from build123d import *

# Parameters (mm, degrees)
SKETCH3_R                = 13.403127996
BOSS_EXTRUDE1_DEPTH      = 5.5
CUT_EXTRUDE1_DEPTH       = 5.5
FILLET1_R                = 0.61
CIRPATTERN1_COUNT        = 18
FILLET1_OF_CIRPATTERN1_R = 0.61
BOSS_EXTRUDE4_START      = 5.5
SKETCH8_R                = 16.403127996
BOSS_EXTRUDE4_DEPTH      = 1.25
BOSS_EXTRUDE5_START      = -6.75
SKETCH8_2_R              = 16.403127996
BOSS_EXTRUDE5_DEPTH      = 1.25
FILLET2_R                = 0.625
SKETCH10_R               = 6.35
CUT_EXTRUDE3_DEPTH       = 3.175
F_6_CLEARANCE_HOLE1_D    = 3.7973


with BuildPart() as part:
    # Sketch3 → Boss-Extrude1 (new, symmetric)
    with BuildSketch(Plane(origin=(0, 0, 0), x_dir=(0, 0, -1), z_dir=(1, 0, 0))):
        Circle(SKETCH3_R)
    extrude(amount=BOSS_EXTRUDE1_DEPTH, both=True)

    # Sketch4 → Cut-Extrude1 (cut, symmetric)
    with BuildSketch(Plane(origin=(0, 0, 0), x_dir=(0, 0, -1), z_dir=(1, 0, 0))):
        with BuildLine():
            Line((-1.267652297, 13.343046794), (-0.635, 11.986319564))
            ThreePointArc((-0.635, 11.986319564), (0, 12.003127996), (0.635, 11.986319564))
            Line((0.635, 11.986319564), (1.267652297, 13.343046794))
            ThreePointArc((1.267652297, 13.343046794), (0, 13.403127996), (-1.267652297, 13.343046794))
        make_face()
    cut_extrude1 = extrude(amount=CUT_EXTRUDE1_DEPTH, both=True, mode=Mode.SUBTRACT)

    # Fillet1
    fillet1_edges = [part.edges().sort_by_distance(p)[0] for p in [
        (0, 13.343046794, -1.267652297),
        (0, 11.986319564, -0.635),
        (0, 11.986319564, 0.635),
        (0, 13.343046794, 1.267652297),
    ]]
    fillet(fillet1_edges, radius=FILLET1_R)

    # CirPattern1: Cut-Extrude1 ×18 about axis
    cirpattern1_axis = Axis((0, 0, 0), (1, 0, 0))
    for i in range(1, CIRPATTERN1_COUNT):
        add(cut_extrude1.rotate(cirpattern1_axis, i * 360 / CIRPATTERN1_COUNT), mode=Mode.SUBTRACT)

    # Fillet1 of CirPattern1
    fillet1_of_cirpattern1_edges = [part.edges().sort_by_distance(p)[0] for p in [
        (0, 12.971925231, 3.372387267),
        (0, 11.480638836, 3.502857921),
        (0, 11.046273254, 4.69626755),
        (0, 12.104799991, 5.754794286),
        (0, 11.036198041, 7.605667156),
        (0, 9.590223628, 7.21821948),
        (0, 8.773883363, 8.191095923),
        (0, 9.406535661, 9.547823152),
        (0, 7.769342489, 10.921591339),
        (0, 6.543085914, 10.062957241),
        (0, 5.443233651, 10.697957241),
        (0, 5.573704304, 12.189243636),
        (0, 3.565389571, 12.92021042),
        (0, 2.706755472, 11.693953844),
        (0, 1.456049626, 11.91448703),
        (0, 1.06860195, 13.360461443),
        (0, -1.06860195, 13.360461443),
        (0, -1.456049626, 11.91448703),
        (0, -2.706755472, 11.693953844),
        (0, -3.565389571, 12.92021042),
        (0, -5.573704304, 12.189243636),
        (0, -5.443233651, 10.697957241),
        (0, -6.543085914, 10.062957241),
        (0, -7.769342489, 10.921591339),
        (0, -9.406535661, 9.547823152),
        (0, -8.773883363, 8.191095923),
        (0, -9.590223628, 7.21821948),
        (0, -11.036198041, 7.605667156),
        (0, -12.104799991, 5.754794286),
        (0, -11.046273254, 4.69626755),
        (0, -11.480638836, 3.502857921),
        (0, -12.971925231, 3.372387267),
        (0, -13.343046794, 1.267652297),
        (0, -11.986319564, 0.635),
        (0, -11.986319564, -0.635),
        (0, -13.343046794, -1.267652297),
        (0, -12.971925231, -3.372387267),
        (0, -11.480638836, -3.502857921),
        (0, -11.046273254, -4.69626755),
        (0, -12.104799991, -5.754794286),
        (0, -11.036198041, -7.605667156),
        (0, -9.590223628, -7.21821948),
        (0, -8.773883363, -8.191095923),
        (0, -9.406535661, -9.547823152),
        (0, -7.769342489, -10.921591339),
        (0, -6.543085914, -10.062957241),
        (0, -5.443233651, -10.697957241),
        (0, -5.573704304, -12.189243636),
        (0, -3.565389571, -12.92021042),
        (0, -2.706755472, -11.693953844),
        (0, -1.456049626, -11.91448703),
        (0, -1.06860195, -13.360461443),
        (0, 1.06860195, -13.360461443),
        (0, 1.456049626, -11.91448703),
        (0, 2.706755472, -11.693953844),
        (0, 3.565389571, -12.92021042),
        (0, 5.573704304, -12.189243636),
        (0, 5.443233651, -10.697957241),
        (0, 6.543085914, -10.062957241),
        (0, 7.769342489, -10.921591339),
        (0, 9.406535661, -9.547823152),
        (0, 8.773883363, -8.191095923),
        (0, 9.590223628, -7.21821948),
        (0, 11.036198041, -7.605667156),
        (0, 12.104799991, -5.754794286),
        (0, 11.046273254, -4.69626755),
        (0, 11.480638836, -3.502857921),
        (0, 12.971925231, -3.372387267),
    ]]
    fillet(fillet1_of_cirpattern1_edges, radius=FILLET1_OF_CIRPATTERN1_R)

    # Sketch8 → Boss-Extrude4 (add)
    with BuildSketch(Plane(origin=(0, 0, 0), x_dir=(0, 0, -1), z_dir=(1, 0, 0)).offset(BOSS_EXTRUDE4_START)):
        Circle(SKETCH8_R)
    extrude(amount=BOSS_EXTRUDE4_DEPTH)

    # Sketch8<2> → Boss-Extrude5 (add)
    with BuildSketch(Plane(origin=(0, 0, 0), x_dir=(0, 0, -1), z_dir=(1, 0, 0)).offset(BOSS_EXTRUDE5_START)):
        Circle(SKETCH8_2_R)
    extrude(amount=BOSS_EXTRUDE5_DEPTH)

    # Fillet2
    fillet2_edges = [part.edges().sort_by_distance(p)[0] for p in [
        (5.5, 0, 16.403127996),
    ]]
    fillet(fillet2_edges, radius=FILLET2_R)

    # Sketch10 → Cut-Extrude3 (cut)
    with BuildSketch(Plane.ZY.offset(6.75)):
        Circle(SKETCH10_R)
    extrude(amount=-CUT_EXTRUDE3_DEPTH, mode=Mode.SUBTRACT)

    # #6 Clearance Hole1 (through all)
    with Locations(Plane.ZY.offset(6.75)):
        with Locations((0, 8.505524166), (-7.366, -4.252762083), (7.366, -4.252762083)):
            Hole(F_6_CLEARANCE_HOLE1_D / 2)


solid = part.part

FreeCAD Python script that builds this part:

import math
import FreeCAD as App
import Part
import Sketcher
from FreeCAD import Vector
Q = App.Units.Quantity


def edges_at(feature, points):
    """Names of the edges that pass closest to the given points."""
    edges = feature.Shape.Edges
    near = lambda p: min(range(len(edges)), key=lambda i: edges[i].distToShape(Part.Vertex(*p))[0])
    return sorted({f"Edge{near(p) + 1}" for p in points})

doc = App.newDocument("Part")
params = doc.addObject("Spreadsheet::Sheet", "Params")
for row, (alias, value) in enumerate([
    ("pad1_length", "11 mm"),
    ("pocket1_length", "11 mm"),
    ("fillet_radius", "0.61 mm"),
    ("fillet2_radius", "0.61 mm"),
    ("pad2_length", "1.25 mm"),
    ("pad3_length", "1.25 mm"),
    ("fillet3_radius", "0.625 mm"),
    ("sketch5_diameter", "0.5 in"),
    ("pocket2_length", "0.125 in"),
    ("hole_diameter", "0.1495 in"),
], start=1):
    params.set(f"A{row}", alias)
    params.set(f"B{row}", "=" + value)
    params.setAlias(f"B{row}", alias)

body = doc.addObject("PartDesign::Body", "Body")

sketch1 = doc.addObject("Sketcher::SketchObject", "Sketch")
body.addObject(sketch1)
sketch1.AttachmentSupport = (doc.YZ_Plane, [""])
sketch1.MapMode = "FlatFace"
sketch1.addGeometry(Part.Circle(Vector(0, 0, 0), Vector(0, 0, 1), 13.403128), False)
sketch1.addConstraint([
    Sketcher.Constraint("Coincident", 0, 3, -1, 1),
    Sketcher.Constraint("Diameter", 0, Q("26.806256 mm")),
])
pad1 = doc.addObject("PartDesign::Pad", "Pad")
body.addObject(pad1)
pad1.Profile = sketch1
pad1.setExpression("Length", "Params.pad1_length")
pad1.Midplane = True

sketch2 = doc.addObject("Sketcher::SketchObject", "Sketch001")
body.addObject(sketch2)
sketch2.AttachmentSupport = (doc.YZ_Plane, [""])
sketch2.MapMode = "FlatFace"
sketch2.addGeometry([
    Part.LineSegment(Vector(13.343047, 1.267652, 0), Vector(11.98632, 0.635, 0)),
    Part.ArcOfCircle(Part.Circle(Vector(0, 0, 0), Vector(0, 0, 1), 12.003128), math.radians(-3.032527), math.radians(3.032527)),
    Part.LineSegment(Vector(11.98632, -0.635, 0), Vector(13.343047, -1.267652, 0)),
    Part.ArcOfCircle(Part.Circle(Vector(0, 0, 0), Vector(0, 0, 1), 13.403128), math.radians(-5.42708), math.radians(5.42708)),
], False)
sketch2.addConstraint([
    Sketcher.Constraint("Coincident", 0, 2, 1, 2),
    Sketcher.Constraint("Coincident", 1, 1, 2, 1),
    Sketcher.Constraint("Coincident", 2, 2, 3, 1),
    Sketcher.Constraint("Coincident", 3, 2, 0, 1),
    Sketcher.Constraint("Coincident", 1, 3, -1, 1),
    Sketcher.Constraint("Coincident", 3, 3, -1, 1),
    Sketcher.Constraint("Vertical", 0, 2, 1, 1),
    Sketcher.Constraint("Vertical", 2, 2, 3, 2),
    Sketcher.Constraint("Angle", 0, Q("-155 deg")),
    Sketcher.Constraint("DistanceY", 1, 1, 0, 2, Q("0.05 in")),
    Sketcher.Constraint("Radius", 1, Q("12.003128 mm")),
    Sketcher.Constraint("Radius", 3, Q("13.403128 mm")),
])
pocket1 = doc.addObject("PartDesign::Pocket", "Pocket")
body.addObject(pocket1)
pocket1.Profile = sketch2
pocket1.setExpression("Length", "Params.pocket1_length")
pocket1.Midplane = True
doc.recompute()

fillet = doc.addObject("PartDesign::Fillet", "Fillet")
body.addObject(fillet)
fillet.Base = (pocket1, edges_at(pocket1, [
    (0, 13.343, -1.268),
    (0, 11.986, -0.635),
    (0, 11.986, 0.635),
    (0, 13.343, 1.268),
]))
fillet.setExpression("Radius", "Params.fillet_radius")
doc.recompute()

polarpattern = doc.addObject("PartDesign::PolarPattern", "PolarPattern")
body.addObject(polarpattern)
polarpattern.Originals = [pocket1]
polarpattern.Axis = (doc.X_Axis, [""])
polarpattern.Angle = 360
polarpattern.Occurrences = 18
body.Tip = polarpattern
doc.recompute()

fillet2 = doc.addObject("PartDesign::Fillet", "Fillet001")
body.addObject(fillet2)
fillet2.Base = (polarpattern, edges_at(polarpattern, [
    (0, 12.972, 3.372),
    (0, 11.481, 3.503),
    (0, 11.046, 4.696),
    (0, 12.105, 5.755),
    (0, 11.036, 7.606),
    (0, 9.59, 7.218),
    (0, 8.774, 8.191),
    (0, 9.407, 9.548),
    (0, 7.769, 10.922),
    (0, 6.543, 10.063),
    (0, 5.443, 10.698),
    (0, 5.574, 12.189),
    (0, 3.565, 12.92),
    (0, 2.707, 11.694),
    (0, 1.456, 11.914),
    (0, 1.069, 13.36),
    (0, -1.069, 13.36),
    (0, -1.456, 11.914),
    (0, -2.707, 11.694),
    (0, -3.565, 12.92),
    (0, -5.574, 12.189),
    (0, -5.443, 10.698),
    (0, -6.543, 10.063),
    (0, -7.769, 10.922),
    (0, -9.407, 9.548),
    (0, -8.774, 8.191),
    (0, -9.59, 7.218),
    (0, -11.036, 7.606),
    (0, -12.105, 5.755),
    (0, -11.046, 4.696),
    (0, -11.481, 3.503),
    (0, -12.972, 3.372),
    (0, -13.343, 1.268),
    (0, -11.986, 0.635),
    (0, -11.986, -0.635),
    (0, -13.343, -1.268),
    (0, -12.972, -3.372),
    (0, -11.481, -3.503),
    (0, -11.046, -4.696),
    (0, -12.105, -5.755),
    (0, -11.036, -7.606),
    (0, -9.59, -7.218),
    (0, -8.774, -8.191),
    (0, -9.407, -9.548),
    (0, -7.769, -10.922),
    (0, -6.543, -10.063),
    (0, -5.443, -10.698),
    (0, -5.574, -12.189),
    (0, -3.565, -12.92),
    (0, -2.707, -11.694),
    (0, -1.456, -11.914),
    (0, -1.069, -13.36),
    (0, 1.069, -13.36),
    (0, 1.456, -11.914),
    (0, 2.707, -11.694),
    (0, 3.565, -12.92),
    (0, 5.574, -12.189),
    (0, 5.443, -10.698),
    (0, 6.543, -10.063),
    (0, 7.769, -10.922),
    (0, 9.407, -9.548),
    (0, 8.774, -8.191),
    (0, 9.59, -7.218),
    (0, 11.036, -7.606),
    (0, 12.105, -5.755),
    (0, 11.046, -4.696),
    (0, 11.481, -3.503),
    (0, 12.972, -3.372),
]))
fillet2.setExpression("Radius", "Params.fillet2_radius")

sketch3 = doc.addObject("Sketcher::SketchObject", "Sketch002")
body.addObject(sketch3)
sketch3.AttachmentSupport = (doc.YZ_Plane, [""])
sketch3.MapMode = "FlatFace"
sketch3.AttachmentOffset = App.Placement(Vector(0, 0, 5.5), App.Rotation())
sketch3.addGeometry(Part.Circle(Vector(0, 0, 0), Vector(0, 0, 1), 16.403128), False)
sketch3.addConstraint([
    Sketcher.Constraint("Coincident", 0, 3, -1, 1),
    Sketcher.Constraint("Diameter", 0, Q("32.806256 mm")),
])
pad2 = doc.addObject("PartDesign::Pad", "Pad001")
body.addObject(pad2)
pad2.Profile = sketch3
pad2.setExpression("Length", "Params.pad2_length")

sketch4 = doc.addObject("Sketcher::SketchObject", "Sketch003")
body.addObject(sketch4)
sketch4.AttachmentSupport = (doc.YZ_Plane, [""])
sketch4.MapMode = "FlatFace"
sketch4.AttachmentOffset = App.Placement(Vector(0, 0, -6.75), App.Rotation())
sketch4.addGeometry(Part.Circle(Vector(0, 0, 0), Vector(0, 0, 1), 16.403128), False)
sketch4.addConstraint([
    Sketcher.Constraint("Coincident", 0, 3, -1, 1),
    Sketcher.Constraint("Diameter", 0, Q("32.806256 mm")),
])
pad3 = doc.addObject("PartDesign::Pad", "Pad002")
body.addObject(pad3)
pad3.Profile = sketch4
pad3.setExpression("Length", "Params.pad3_length")
doc.recompute()

fillet3 = doc.addObject("PartDesign::Fillet", "Fillet002")
body.addObject(fillet3)
fillet3.Base = (pad3, edges_at(pad3, [(5.5, 0, 16.403)]))
fillet3.setExpression("Radius", "Params.fillet3_radius")

sketch5 = doc.addObject("Sketcher::SketchObject", "Sketch004")
body.addObject(sketch5)
sketch5.AttachmentSupport = (doc.YZ_Plane, [""])
sketch5.MapMode = "FlatFace"
sketch5.AttachmentOffset = App.Placement(Vector(0, 0, -6.75), App.Rotation())
sketch5.addGeometry(Part.Circle(Vector(0, 0, 0), Vector(0, 0, 1), 6.35), False)
sketch5.addConstraint([
    Sketcher.Constraint("Coincident", 0, 3, -1, 1),
    Sketcher.Constraint("Diameter", 0, Q("0.5 in")),
])
sketch5.setExpression("Constraints[1]", "Params.sketch5_diameter")
pocket2 = doc.addObject("PartDesign::Pocket", "Pocket001")
body.addObject(pocket2)
pocket2.Profile = sketch5
pocket2.setExpression("Length", "Params.pocket2_length")
pocket2.Reversed = True

sketch6 = doc.addObject("Sketcher::SketchObject", "Sketch005")
body.addObject(sketch6)
sketch6.AttachmentSupport = (doc.YZ_Plane, [""])
sketch6.MapMode = "FlatFace"
sketch6.AttachmentOffset = App.Placement(Vector(0, 0, -6.75), App.Rotation())
sketch6.addGeometry([
    Part.Circle(Vector(8.505524, 0, 0), Vector(0, 0, 1), 1.89865),
    Part.Circle(Vector(-4.252762, -7.366, 0), Vector(0, 0, 1), 1.89865),
    Part.Circle(Vector(-4.252762, 7.366, 0), Vector(0, 0, 1), 1.89865),
], False)
sketch6.addConstraint([
    Sketcher.Constraint("Equal", 0, 1),
    Sketcher.Constraint("Equal", 1, 2),
    Sketcher.Constraint("Symmetric", 1, 3, 2, 3, -1),
    Sketcher.Constraint("PointOnObject", 0, 3, -1),
    Sketcher.Constraint("Diameter", 0, Q("0.1495 in")),
    Sketcher.Constraint("DistanceY", 1, 3, -1, 1, Q("0.29 in")),
    Sketcher.Constraint("DistanceX", -1, 1, 0, 3, Q("8.505524 mm")),
    Sketcher.Constraint("DistanceX", 1, 3, -1, 1, Q("4.252762 mm")),
])
doc.recompute()
hole = doc.addObject("PartDesign::Hole", "Hole")
body.addObject(hole)
hole.Profile = sketch6
hole.ThreadType = "None"
hole.setExpression("Diameter", "Params.hole_diameter")
hole.DepthType = "ThroughAll"
hole.Reversed = True

doc.recompute()
